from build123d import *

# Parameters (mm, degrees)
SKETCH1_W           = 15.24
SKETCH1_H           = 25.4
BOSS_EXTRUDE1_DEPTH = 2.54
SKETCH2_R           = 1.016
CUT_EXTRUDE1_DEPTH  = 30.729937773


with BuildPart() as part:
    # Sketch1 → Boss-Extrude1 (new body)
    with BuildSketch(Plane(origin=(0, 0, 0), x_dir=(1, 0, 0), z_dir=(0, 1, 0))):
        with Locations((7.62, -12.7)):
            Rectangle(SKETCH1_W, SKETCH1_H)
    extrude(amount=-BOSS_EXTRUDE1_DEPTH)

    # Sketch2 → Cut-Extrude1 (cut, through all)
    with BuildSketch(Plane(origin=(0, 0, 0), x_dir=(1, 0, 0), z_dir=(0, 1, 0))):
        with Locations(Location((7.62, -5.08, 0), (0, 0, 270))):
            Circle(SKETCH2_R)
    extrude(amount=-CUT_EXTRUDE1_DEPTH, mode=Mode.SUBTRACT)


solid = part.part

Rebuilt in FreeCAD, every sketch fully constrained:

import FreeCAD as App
import Part
import Sketcher
Q = App.Units.Quantity

doc = App.newDocument("Part")
params = doc.addObject("Spreadsheet::Sheet", "Params")
for row, (alias, value) in enumerate([
    ("sketch1_height", "1 in"),
    ("sketch1_width", "0.6 in"),
    ("pad1_length", "0.1 in"),
    ("sketch2_diameter", "0.08 in"),
], start=1):
    params.set(f"A{row}", alias)
    params.set(f"B{row}", "=" + value)
    params.setAlias(f"B{row}", alias)

body = doc.addObject("PartDesign::Body", "Body")

# Sketch on XZ plane
sketch1 = body.newObject("Sketcher::SketchObject", "Sketch")
sketch1.AttachmentSupport = (doc.getObject("XZ_Plane"), [""])
sketch1.MapMode = "FlatFace"
sketch1.addGeometry([
    Part.LineSegment(App.Vector(0, 0, 0), App.Vector(0, 25, 0)),
    Part.LineSegment(App.Vector(0, 25, 0), App.Vector(15, 25, 0)),
    Part.LineSegment(App.Vector(15, 25, 0), App.Vector(15, 0, 0)),
    Part.LineSegment(App.Vector(15, 0, 0), App.Vector(0, 0, 0)),
], False)
sketch1.addConstraint([
    Sketcher.Constraint("Coincident", 0, 2, 1, 1),
    Sketcher.Constraint("Coincident", 1, 2, 2, 1),
    Sketcher.Constraint("Coincident", 2, 2, 3, 1),
    Sketcher.Constraint("Coincident", 3, 2, 0, 1),
    Sketcher.Constraint("Vertical", 0),
    Sketcher.Constraint("Horizontal", 1),
    Sketcher.Constraint("Vertical", 2),
    Sketcher.Constraint("Horizontal", 3),
    Sketcher.Constraint("Coincident", 3, 2, -1, 1),
    Sketcher.Constraint("DistanceY", 0, 1, 0, 2, Q("1 in")),
    Sketcher.Constraint("DistanceX", 1, 1, 1, 2, Q("0.6 in")),
])
sketch1.setExpression("Constraints[9]", "Params.sketch1_height")
sketch1.setExpression("Constraints[10]", "Params.sketch1_width")
pad1 = body.newObject("PartDesign::Pad", "Pad")
pad1.Profile = sketch1
pad1.setExpression("Length", "Params.pad1_length")

# Sketch on XZ plane
sketch2 = body.newObject("Sketcher::SketchObject", "Sketch001")
sketch2.AttachmentSupport = (doc.getObject("XZ_Plane"), [""])
sketch2.MapMode = "FlatFace"
sketch2.addGeometry(Part.Circle(App.Vector(7.6, 5.1, 0), App.Vector(0, 0, 1), 1), False)
sketch2.addConstraint([
    Sketcher.Constraint("Diameter", 0, Q("0.08 in")),
    Sketcher.Constraint("DistanceX", -1, 1, 0, 3, Q("0.3 in")),
    Sketcher.Constraint("DistanceY", -1, 1, 0, 3, Q("0.2 in")),
])
sketch2.setExpression("Constraints[0]", "Params.sketch2_diameter")
pocket1 = body.newObject("PartDesign::Pocket", "Pocket")
pocket1.Profile = sketch2
pocket1.Type = "ThroughAll"
pocket1.Reversed = True

doc.recompute()
